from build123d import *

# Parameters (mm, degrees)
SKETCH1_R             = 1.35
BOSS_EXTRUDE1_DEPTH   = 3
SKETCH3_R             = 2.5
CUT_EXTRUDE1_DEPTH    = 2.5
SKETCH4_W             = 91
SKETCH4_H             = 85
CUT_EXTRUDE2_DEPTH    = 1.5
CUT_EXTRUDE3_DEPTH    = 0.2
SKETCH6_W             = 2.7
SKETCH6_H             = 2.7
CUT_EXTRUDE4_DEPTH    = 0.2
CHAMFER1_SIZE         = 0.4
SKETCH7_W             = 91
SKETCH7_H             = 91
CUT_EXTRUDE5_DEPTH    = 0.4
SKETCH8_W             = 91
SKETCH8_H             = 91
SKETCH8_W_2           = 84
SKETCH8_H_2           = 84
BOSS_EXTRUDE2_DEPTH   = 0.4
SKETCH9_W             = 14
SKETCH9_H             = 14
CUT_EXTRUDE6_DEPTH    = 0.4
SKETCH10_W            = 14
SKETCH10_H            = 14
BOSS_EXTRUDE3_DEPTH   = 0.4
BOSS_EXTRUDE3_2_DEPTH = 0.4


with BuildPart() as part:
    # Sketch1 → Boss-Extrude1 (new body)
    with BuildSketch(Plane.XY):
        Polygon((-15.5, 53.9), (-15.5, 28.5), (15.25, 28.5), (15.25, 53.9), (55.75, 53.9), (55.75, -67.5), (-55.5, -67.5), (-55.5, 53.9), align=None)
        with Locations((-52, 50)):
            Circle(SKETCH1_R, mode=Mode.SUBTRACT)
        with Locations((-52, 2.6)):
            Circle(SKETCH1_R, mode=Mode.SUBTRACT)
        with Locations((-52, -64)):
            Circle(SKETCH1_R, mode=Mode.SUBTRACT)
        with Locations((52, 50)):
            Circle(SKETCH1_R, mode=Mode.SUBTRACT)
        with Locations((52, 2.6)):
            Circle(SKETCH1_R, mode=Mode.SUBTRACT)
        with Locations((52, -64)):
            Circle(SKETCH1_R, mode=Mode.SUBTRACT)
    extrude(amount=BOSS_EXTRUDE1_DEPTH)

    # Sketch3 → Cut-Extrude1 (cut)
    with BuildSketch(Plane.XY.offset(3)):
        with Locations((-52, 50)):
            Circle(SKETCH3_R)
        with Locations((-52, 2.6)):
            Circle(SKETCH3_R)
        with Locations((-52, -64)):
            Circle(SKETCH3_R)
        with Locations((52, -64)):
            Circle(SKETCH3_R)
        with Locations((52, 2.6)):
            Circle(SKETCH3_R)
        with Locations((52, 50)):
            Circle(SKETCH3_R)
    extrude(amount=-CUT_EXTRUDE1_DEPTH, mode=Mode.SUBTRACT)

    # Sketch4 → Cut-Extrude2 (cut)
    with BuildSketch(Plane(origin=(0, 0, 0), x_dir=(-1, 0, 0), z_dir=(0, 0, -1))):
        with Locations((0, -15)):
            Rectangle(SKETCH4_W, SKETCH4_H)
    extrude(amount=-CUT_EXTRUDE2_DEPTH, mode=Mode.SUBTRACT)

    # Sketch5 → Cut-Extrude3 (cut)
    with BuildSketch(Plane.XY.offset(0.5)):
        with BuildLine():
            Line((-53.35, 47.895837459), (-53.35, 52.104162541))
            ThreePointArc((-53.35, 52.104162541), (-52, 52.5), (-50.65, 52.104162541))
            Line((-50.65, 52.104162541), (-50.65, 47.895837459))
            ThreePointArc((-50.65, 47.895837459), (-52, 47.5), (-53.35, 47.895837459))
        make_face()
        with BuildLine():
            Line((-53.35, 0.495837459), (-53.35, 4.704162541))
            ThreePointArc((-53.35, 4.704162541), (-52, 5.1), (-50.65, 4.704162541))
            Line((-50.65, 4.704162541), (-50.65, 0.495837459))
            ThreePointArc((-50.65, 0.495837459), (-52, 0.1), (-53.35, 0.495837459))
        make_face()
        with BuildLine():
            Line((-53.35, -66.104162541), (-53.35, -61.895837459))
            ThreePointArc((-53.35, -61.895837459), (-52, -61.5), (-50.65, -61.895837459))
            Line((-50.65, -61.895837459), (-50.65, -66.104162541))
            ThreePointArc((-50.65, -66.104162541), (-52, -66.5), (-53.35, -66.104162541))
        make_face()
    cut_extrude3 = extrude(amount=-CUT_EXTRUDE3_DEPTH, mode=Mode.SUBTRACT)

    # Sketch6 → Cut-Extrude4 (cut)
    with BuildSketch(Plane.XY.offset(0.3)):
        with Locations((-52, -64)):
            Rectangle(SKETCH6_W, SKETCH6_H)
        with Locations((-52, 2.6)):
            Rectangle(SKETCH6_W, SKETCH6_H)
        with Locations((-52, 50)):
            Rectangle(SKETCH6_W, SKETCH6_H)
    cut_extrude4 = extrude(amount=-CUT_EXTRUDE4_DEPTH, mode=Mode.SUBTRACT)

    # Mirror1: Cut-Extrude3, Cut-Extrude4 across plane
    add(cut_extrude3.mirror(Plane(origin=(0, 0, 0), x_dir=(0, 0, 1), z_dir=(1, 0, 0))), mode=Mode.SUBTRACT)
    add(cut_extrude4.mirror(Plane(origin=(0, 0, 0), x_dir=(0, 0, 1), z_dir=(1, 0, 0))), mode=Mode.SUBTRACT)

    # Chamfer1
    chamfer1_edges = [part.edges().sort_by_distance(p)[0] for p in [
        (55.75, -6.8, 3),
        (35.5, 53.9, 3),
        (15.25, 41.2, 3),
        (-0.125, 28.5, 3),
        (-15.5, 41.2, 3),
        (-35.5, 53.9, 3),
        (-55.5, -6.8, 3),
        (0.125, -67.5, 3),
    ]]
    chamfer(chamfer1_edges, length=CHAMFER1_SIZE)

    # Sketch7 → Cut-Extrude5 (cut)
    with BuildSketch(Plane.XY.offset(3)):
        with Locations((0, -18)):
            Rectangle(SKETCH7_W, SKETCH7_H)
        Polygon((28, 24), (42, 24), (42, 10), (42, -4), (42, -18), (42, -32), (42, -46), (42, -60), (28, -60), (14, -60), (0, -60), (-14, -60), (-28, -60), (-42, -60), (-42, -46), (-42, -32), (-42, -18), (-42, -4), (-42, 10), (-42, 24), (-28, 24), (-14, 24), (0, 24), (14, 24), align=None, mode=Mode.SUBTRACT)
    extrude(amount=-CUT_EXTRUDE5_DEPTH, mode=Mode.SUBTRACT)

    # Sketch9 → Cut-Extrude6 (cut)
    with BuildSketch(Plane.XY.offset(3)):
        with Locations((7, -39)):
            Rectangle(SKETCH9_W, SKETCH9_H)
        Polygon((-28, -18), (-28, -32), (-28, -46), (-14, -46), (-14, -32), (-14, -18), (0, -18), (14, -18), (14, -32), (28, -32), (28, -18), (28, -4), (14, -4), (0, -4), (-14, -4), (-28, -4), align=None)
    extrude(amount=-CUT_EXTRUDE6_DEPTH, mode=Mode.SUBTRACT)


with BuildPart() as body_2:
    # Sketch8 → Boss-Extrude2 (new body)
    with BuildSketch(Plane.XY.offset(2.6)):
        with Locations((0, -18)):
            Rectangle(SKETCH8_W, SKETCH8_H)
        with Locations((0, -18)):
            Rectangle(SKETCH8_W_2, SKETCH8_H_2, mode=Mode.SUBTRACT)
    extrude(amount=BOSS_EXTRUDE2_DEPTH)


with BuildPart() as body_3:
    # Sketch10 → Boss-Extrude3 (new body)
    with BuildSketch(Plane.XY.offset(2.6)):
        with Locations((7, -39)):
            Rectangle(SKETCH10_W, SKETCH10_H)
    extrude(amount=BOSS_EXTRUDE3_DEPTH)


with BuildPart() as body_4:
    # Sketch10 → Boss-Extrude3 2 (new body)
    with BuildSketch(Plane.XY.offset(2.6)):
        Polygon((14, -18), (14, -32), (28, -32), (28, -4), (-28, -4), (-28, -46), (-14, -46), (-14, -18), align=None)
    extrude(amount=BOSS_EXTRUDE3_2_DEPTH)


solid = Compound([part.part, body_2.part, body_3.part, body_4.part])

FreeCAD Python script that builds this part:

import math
import FreeCAD as App
import Part
import Sketcher
from FreeCAD import Vector


def edges_at(feature, points):
    """Names of the edges that pass closest to the given points."""
    edges = feature.Shape.Edges
    near = lambda p: min(range(len(edges)), key=lambda i: edges[i].distToShape(Part.Vertex(*p))[0])
    return sorted({f"Edge{near(p) + 1}" for p in points})


def add_polygon(sketch, points):
    """Adds a closed chain of lines whose ends are joined by coincident constraints."""
    first, n = sketch.GeometryCount, len(points)
    for a, b in zip(points, points[1:] + points[:1]):
        sketch.addGeometry(Part.LineSegment(App.Vector(*a, 0), App.Vector(*b, 0)), False)
    for i in range(n):
        sketch.addConstraint(Sketcher.Constraint("Coincident", first + i, 2, first + (i + 1) % n, 1))

doc = App.newDocument("Part")
body = doc.addObject("PartDesign::Body", "Body")

# Sketch on XY plane
sketch1 = doc.addObject("Sketcher::SketchObject", "Sketch")
body.addObject(sketch1)
sketch1.AttachmentSupport = (doc.XY_Plane, [""])
sketch1.MapMode = "FlatFace"
add_polygon(sketch1, [(-15.5, 28.5), (-15.5, 53.9), (-55.5, 53.9), (-55.5, -67.5), (55.75, -67.5), (55.75, 53.9), (15.25, 53.9), (15.25, 28.5)])  # lines 0-7
sketch1.addGeometry(Part.Circle(Vector(52, -64, 0), Vector(0, 0, 1), 1.35), False)  # 8
sketch1.addGeometry(Part.Circle(Vector(-52, -64, 0), Vector(0, 0, 1), 1.35), False)  # 9
sketch1.addGeometry(Part.Circle(Vector(52, 2.6, 0), Vector(0, 0, 1), 1.35), False)  # 10
sketch1.addGeometry(Part.Circle(Vector(52, 50, 0), Vector(0, 0, 1), 1.35), False)  # 11
sketch1.addGeometry(Part.Circle(Vector(-52, 2.6, 0), Vector(0, 0, 1), 1.35), False)  # 12
sketch1.addGeometry(Part.Circle(Vector(-52, 50, 0), Vector(0, 0, 1), 1.35), False)  # 13
sketch1.addConstraint([
    Sketcher.Constraint("Vertical", 0),
    Sketcher.Constraint("Horizontal", 1),
    Sketcher.Constraint("Vertical", 2),
    Sketcher.Constraint("Horizontal", 3),
    Sketcher.Constraint("Vertical", 4),
    Sketcher.Constraint("Horizontal", 5),
    Sketcher.Constraint("Vertical", 6),
    Sketcher.Constraint("Horizontal", 7),
    Sketcher.Constraint("Equal", 8, 9),
    Sketcher.Constraint("Equal", 9, 10),
    Sketcher.Constraint("Equal", 10, 11),
    Sketcher.Constraint("Equal", 11, 12),
    Sketcher.Constraint("Equal", 12, 13),
    Sketcher.Constraint("Symmetric", 8, 3, 9, 3, -2),
    Sketcher.Constraint("Symmetric", 10, 3, 12, 3, -2),
    Sketcher.Constraint("Symmetric", 11, 3, 13, 3, -2),
    Sketcher.Constraint("Horizontal", 1, 2, 4, 2),
    Sketcher.Constraint("Vertical", 8, 3, 10, 3),
    Sketcher.Constraint("Vertical", 10, 3, 11, 3),
    Sketcher.Constraint("Diameter", 8, 2.7),
    Sketcher.Constraint("DistanceX", 1, 2, 1, 1, 40.0),
    Sketcher.Constraint("DistanceX", 5, 2, 5, 1, 40.5),
    Sketcher.Constraint("DistanceY", 0, 1, 0, 2, 25.4),
    Sketcher.Constraint("DistanceY", 2, 2, 2, 1, 121.4),
    Sketcher.Constraint("DistanceX", -1, 1, 8, 3, 52.0),
    Sketcher.Constraint("DistanceY", 8, 3, -1, 1, 64.0),
    Sketcher.Constraint("DistanceY", -1, 1, 11, 3, 50.0),
    Sketcher.Constraint("DistanceX", 3, 1, 3, 2, 111.25),
    Sketcher.Constraint("DistanceY", -1, 1, 10, 3, 2.6),
    Sketcher.Constraint("DistanceX", 0, 2, -1, 1, 15.5),
    Sketcher.Constraint("DistanceY", -1, 1, 0, 2, 53.9),
])
pad1 = doc.addObject("PartDesign::Pad", "Pad")
body.addObject(pad1)
pad1.Profile = sketch1
pad1.Length = 3

# Sketch on XY plane
sketch2 = doc.addObject("Sketcher::SketchObject", "Sketch001")
body.addObject(sketch2)
sketch2.AttachmentSupport = (doc.XY_Plane, [""])
sketch2.MapMode = "FlatFace"
sketch2.AttachmentOffset = App.Placement(Vector(0, 0, 3), App.Rotation())
sketch2.addGeometry([
    Part.Circle(Vector(-52, 50, 0), Vector(0, 0, 1), 2.5),  # 0
    Part.Circle(Vector(-52, 2.6, 0), Vector(0, 0, 1), 2.5),  # 1
    Part.Circle(Vector(-52, -64, 0), Vector(0, 0, 1), 2.5),  # 2
    Part.Circle(Vector(52, -64, 0), Vector(0, 0, 1), 2.5),  # 3
    Part.Circle(Vector(52, 2.6, 0), Vector(0, 0, 1), 2.5),  # 4
    Part.Circle(Vector(52, 50, 0), Vector(0, 0, 1), 2.5),  # 5
], False)
sketch2.addConstraint([
    Sketcher.Constraint("Equal", 0, 1),
    Sketcher.Constraint("Equal", 1, 2),
    Sketcher.Constraint("Equal", 2, 3),
    Sketcher.Constraint("Equal", 3, 4),
    Sketcher.Constraint("Equal", 4, 5),
    Sketcher.Constraint("Symmetric", 2, 3, 3, 3, -2),
    Sketcher.Constraint("Symmetric", 1, 3, 4, 3, -2),
    Sketcher.Constraint("Symmetric", 0, 3, 5, 3, -2),
    Sketcher.Constraint("Vertical", 0, 3, 1, 3),
    Sketcher.Constraint("Vertical", 1, 3, 2, 3),
    Sketcher.Constraint("Diameter", 0, 5.0),
    Sketcher.Constraint("DistanceX", 0, 3, -1, 1, 52.0),
    Sketcher.Constraint("DistanceY", -1, 1, 0, 3, 50.0),
    Sketcher.Constraint("DistanceY", 2, 3, -1, 1, 64.0),
    Sketcher.Constraint("DistanceY", -1, 1, 1, 3, 2.6),
])
pocket1 = doc.addObject("PartDesign::Pocket", "Pocket")
body.addObject(pocket1)
pocket1.Profile = sketch2
pocket1.Length = 2.5

# Sketch on XY plane
sketch3 = doc.addObject("Sketcher::SketchObject", "Sketch002")
body.addObject(sketch3)
sketch3.AttachmentSupport = (doc.XY_Plane, [""])
sketch3.MapMode = "FlatFace"
add_polygon(sketch3, [(45.5, 27.5), (45.5, -57.5), (-45.5, -57.5), (-45.5, 27.5)])  # lines 0-3
sketch3.addConstraint([
    Sketcher.Constraint("Vertical", 0),
    Sketcher.Constraint("Horizontal", 1),
    Sketcher.Constraint("Vertical", 2),
    Sketcher.Constraint("Horizontal", 3),
    Sketcher.Constraint("DistanceX", 1, 2, 1, 1, 91.0),
    Sketcher.Constraint("DistanceY", 0, 2, 0, 1, 85.0),
    Sketcher.Constraint("DistanceX", -1, 1, 0, 2, 45.5),
    Sketcher.Constraint("DistanceY", 0, 2, -1, 1, 57.5),
])
pocket2 = doc.addObject("PartDesign::Pocket", "Pocket001")
body.addObject(pocket2)
pocket2.Profile = sketch3
pocket2.Length = 1.5
pocket2.Reversed = True

# Sketch on XY plane
sketch4 = doc.addObject("Sketcher::SketchObject", "Sketch003")
body.addObject(sketch4)
sketch4.AttachmentSupport = (doc.XY_Plane, [""])
sketch4.MapMode = "FlatFace"
sketch4.AttachmentOffset = App.Placement(Vector(0, 0, 0.5), App.Rotation())
sketch4.addGeometry([
    Part.LineSegment(Vector(-53.35, 52.104163, 0), Vector(-53.35, 47.895837, 0)),  # 0
    Part.ArcOfCircle(Part.Circle(Vector(-52, 50, 0), Vector(0, 0, 1), 2.5), math.radians(-122.683639), math.radians(-57.316361)),  # 1
    Part.LineSegment(Vector(-50.65, 47.895837, 0), Vector(-50.65, 52.104163, 0)),  # 2
    Part.ArcOfCircle(Part.Circle(Vector(-52, 50, 0), Vector(0, 0, 1), 2.5), math.radians(57.316361), math.radians(122.683639)),  # 3
    Part.LineSegment(Vector(-53.35, 4.704163, 0), Vector(-53.35, 0.495837, 0)),  # 4
    Part.ArcOfCircle(Part.Circle(Vector(-52, 2.6, 0), Vector(0, 0, 1), 2.5), math.radians(-122.683639), math.radians(-57.316361)),  # 5
    Part.LineSegment(Vector(-50.65, 0.495837, 0), Vector(-50.65, 4.704163, 0)),  # 6
    Part.ArcOfCircle(Part.Circle(Vector(-52, 2.6, 0), Vector(0, 0, 1), 2.5), math.radians(57.316361), math.radians(122.683639)),  # 7
    Part.LineSegment(Vector(-53.35, -61.895837, 0), Vector(-53.35, -66.104163, 0)),  # 8
    Part.ArcOfCircle(Part.Circle(Vector(-52, -64, 0), Vector(0, 0, 1), 2.5), math.radians(-122.683639), math.radians(-57.316361)),  # 9
    Part.LineSegment(Vector(-50.65, -66.104163, 0), Vector(-50.65, -61.895837, 0)),  # 10
    Part.ArcOfCircle(Part.Circle(Vector(-52, -64, 0), Vector(0, 0, 1), 2.5), math.radians(57.316361), math.radians(122.683639)),  # 11
], False)
sketch4.addConstraint([
    Sketcher.Constraint("Coincident", 0, 2, 1, 1),
    Sketcher.Constraint("Coincident", 1, 2, 2, 1),
    Sketcher.Constraint("Coincident", 2, 2, 3, 1),
    Sketcher.Constraint("Coincident", 3, 2, 0, 1),
    Sketcher.Constraint("Coincident", 4, 2, 5, 1),
    Sketcher.Constraint("Coincident", 5, 2, 6, 1),
    Sketcher.Constraint("Coincident", 6, 2, 7, 1),
    Sketcher.Constraint("Coincident", 7, 2, 4, 1),
    Sketcher.Constraint("Coincident", 8, 2, 9, 1),
    Sketcher.Constraint("Coincident", 9, 2, 10, 1),
    Sketcher.Constraint("Coincident", 10, 2, 11, 1),
    Sketcher.Constraint("Coincident", 11, 2, 8, 1),
    Sketcher.Constraint("Vertical", 0),
    Sketcher.Constraint("Vertical", 2),
    Sketcher.Constraint("Vertical", 4),
    Sketcher.Constraint("Vertical", 6),
    Sketcher.Constraint("Vertical", 8),
    Sketcher.Constraint("Vertical", 10),
    Sketcher.Constraint("Coincident", 3, 3, 1, 3),
    Sketcher.Constraint("Coincident", 7, 3, 5, 3),
    Sketcher.Constraint("Coincident", 11, 3, 9, 3),
    Sketcher.Constraint("Equal", 1, 3),
    Sketcher.Constraint("Equal", 3, 5),
    Sketcher.Constraint("Equal", 5, 7),
    Sketcher.Constraint("Equal", 7, 9),
    Sketcher.Constraint("Equal", 9, 11),
    Sketcher.Constraint("Horizontal", 0, 2, 1, 2),
    Sketcher.Constraint("Horizontal", 4, 2, 5, 2),
    Sketcher.Constraint("Horizontal", 8, 2, 9, 2),
    Sketcher.Constraint("Vertical", 3, 3, 5, 3),
    Sketcher.Constraint("Vertical", 7, 3, 9, 3),
    Sketcher.Constraint("Vertical", 3, 2, 4, 2),
    Sketcher.Constraint("Vertical", 7, 2, 8, 2),
    Sketcher.Constraint("Radius", 1, 2.5),
    Sketcher.Constraint("DistanceX", 1, 3, -1, 1, 52.0),
    Sketcher.Constraint("DistanceY", -1, 1, 1, 3, 50.0),
    Sketcher.Constraint("DistanceY", 9, 3, -1, 1, 64.0),
    Sketcher.Constraint("DistanceY", -1, 1, 5, 3, 2.6),
    Sketcher.Constraint("DistanceX", 0, 2, 1, 2, 2.7),
])
pocket3 = doc.addObject("PartDesign::Pocket", "Pocket002")
body.addObject(pocket3)
pocket3.Profile = sketch4
pocket3.Length = 0.2

# Sketch on XY plane
sketch5 = doc.addObject("Sketcher::SketchObject", "Sketch004")
body.addObject(sketch5)
sketch5.AttachmentSupport = (doc.XY_Plane, [""])
sketch5.MapMode = "FlatFace"
sketch5.AttachmentOffset = App.Placement(Vector(0, 0, 0.3), App.Rotation())
add_polygon(sketch5, [(-53.35, -62.65), (-53.35, -65.35), (-50.65, -65.35), (-50.65, -62.65)])  # lines 0-3
add_polygon(sketch5, [(-53.35, 3.95), (-53.35, 1.25), (-50.65, 1.25), (-50.65, 3.95)])  # lines 4-7
add_polygon(sketch5, [(-53.35, 51.35), (-53.35, 48.65), (-50.65, 48.65), (-50.65, 51.35)])  # lines 8-11
sketch5.addConstraint([
    Sketcher.Constraint("Vertical", 0),
    Sketcher.Constraint("Horizontal", 1),
    Sketcher.Constraint("Vertical", 2),
    Sketcher.Constraint("Horizontal", 3),
    Sketcher.Constraint("Vertical", 4),
    Sketcher.Constraint("Horizontal", 5),
    Sketcher.Constraint("Vertical", 6),
    Sketcher.Constraint("Horizontal", 7),
    Sketcher.Constraint("Vertical", 8),
    Sketcher.Constraint("Horizontal", 9),
    Sketcher.Constraint("Vertical", 10),
    Sketcher.Constraint("Horizontal", 11),
    Sketcher.Constraint("Vertical", 3, 2, 4, 2),
    Sketcher.Constraint("Vertical", 2, 2, 5, 2),
    Sketcher.Constraint("Vertical", 7, 2, 8, 2),
    Sketcher.Constraint("Vertical", 6, 2, 9, 2),
    Sketcher.Constraint("Equal", 11, 0),
    Sketcher.Constraint("Equal", 2, 4),
    Sketcher.Constraint("Equal", 6, 8),
    Sketcher.Constraint("DistanceX", 1, 1, 1, 2, 2.7),
    Sketcher.Constraint("DistanceY", 3, 2, 4, 2, 63.9),
    Sketcher.Constraint("DistanceY", 7, 2, 8, 2, 44.7),
    Sketcher.Constraint("DistanceX", 0, 2, -1, 1, 53.35),
    Sketcher.Constraint("DistanceY", 0, 2, -1, 1, 65.35),
])
pocket4 = doc.addObject("PartDesign::Pocket", "Pocket003")
body.addObject(pocket4)
pocket4.Profile = sketch5
pocket4.Length = 0.2
doc.recompute()

mirrored = doc.addObject("PartDesign::Mirrored", "Mirrored")
body.addObject(mirrored)
mirrored.Originals = [pocket3, pocket4]
mirrored.MirrorPlane = (doc.YZ_Plane, [""])
body.Tip = mirrored
doc.recompute()

chamfer = doc.addObject("PartDesign::Chamfer", "Chamfer")
body.addObject(chamfer)
chamfer.Base = (mirrored, edges_at(mirrored, [
    (55.75, -6.8, 3),
    (35.5, 53.9, 3),
    (15.25, 41.2, 3),
    (-0.125, 28.5, 3),
    (-15.5, 41.2, 3),
    (-35.5, 53.9, 3),
    (-55.5, -6.8, 3),
    (0.125, -67.5, 3),
]))
chamfer.Size = 0.4

# Sketch on XY plane
sketch6 = doc.addObject("Sketcher::SketchObject", "Sketch005")
body.addObject(sketch6)
sketch6.AttachmentSupport = (doc.XY_Plane, [""])
sketch6.MapMode = "FlatFace"
sketch6.AttachmentOffset = App.Placement(Vector(0, 0, 3), App.Rotation())
add_polygon(sketch6, [(-45.5, 27.5), (-45.5, -63.5), (45.5, -63.5), (45.5, 27.5)])  # lines 0-3
add_polygon(sketch6, [(-42, 24), (42, 24), (42, -60), (-42, -60)])  # lines 4-7
sketch6.addConstraint([
    Sketcher.Constraint("Vertical", 0),
    Sketcher.Constraint("Horizontal", 1),
    Sketcher.Constraint("Vertical", 2),
    Sketcher.Constraint("Horizontal", 3),
    Sketcher.Constraint("Horizontal", 4),
    Sketcher.Constraint("Vertical", 5),
    Sketcher.Constraint("Horizontal", 6),
    Sketcher.Constraint("Vertical", 7),
    Sketcher.Constraint("Equal", 3, 0),
    Sketcher.Constraint("Equal", 6, 5),
    Sketcher.Constraint("DistanceX", 1, 1, 1, 2, 91.0),
    Sketcher.Constraint("DistanceX", 4, 1, 4, 2, 84.0),
    Sketcher.Constraint("DistanceX", -1, 1, 4, 2, 42.0),
    Sketcher.Constraint("DistanceY", -1, 1, 4, 2, 24.0),
    Sketcher.Constraint("DistanceX", 0, 2, -1, 1, 45.5),
    Sketcher.Constraint("DistanceY", 0, 2, -1, 1, 63.5),
])
pocket5 = doc.addObject("PartDesign::Pocket", "Pocket004")
body.addObject(pocket5)
pocket5.Profile = sketch6
pocket5.Length = 0.4

# Sketch on XY plane
sketch7 = doc.addObject("Sketcher::SketchObject", "Sketch006")
body.addObject(sketch7)
sketch7.AttachmentSupport = (doc.XY_Plane, [""])
sketch7.MapMode = "FlatFace"
sketch7.AttachmentOffset = App.Placement(Vector(0, 0, 3), App.Rotation())
add_polygon(sketch7, [(0, -32), (0, -46), (14, -46), (14, -32)])  # lines 0-3
add_polygon(sketch7, [(-28, -46), (-14, -46), (-14, -18), (14, -18), (14, -32), (28, -32), (28, -4), (-28, -4)])  # lines 4-11
sketch7.addConstraint([
    Sketcher.Constraint("Vertical", 0),
    Sketcher.Constraint("Horizontal", 1),
    Sketcher.Constraint("Vertical", 2),
    Sketcher.Constraint("Horizontal", 3),
    Sketcher.Constraint("Horizontal", 4),
    Sketcher.Constraint("Vertical", 5),
    Sketcher.Constraint("Horizontal", 6),
    Sketcher.Constraint("Vertical", 7),
    Sketcher.Constraint("Horizontal", 8),
    Sketcher.Constraint("Vertical", 9),
    Sketcher.Constraint("Horizontal", 10),
    Sketcher.Constraint("Vertical", 11),
    Sketcher.Constraint("Coincident", 7, 2, 2, 2),
    Sketcher.Constraint("Symmetric", 1, 2, 4, 2, -2),
    Sketcher.Constraint("PointOnObject", 0, 2, -2),
    Sketcher.Constraint("Equal", 3, 4),
    Sketcher.Constraint("Equal", 4, 8),
    Sketcher.Constraint("Equal", 8, 0),
    Sketcher.Constraint("Equal", 6, 5),
    Sketcher.Constraint("Equal", 5, 9),
    Sketcher.Constraint("DistanceX", 1, 1, 1, 2, 14.0),
    Sketcher.Constraint("DistanceY", 0, 2, -1, 1, 46.0),
])
pocket6 = doc.addObject("PartDesign::Pocket", "Pocket005")
body.addObject(pocket6)
pocket6.Profile = sketch7
pocket6.Length = 0.4
body2 = doc.addObject("PartDesign::Body", "Body001")

# Sketch on XY plane
sketch8 = doc.addObject("Sketcher::SketchObject", "Sketch007")
body2.addObject(sketch8)
sketch8.AttachmentSupport = (doc.getObject("XY_Plane001"), [""])
sketch8.MapMode = "FlatFace"
sketch8.AttachmentOffset = App.Placement(Vector(0, 0, 2.6), App.Rotation())
add_polygon(sketch8, [(-45.5, 27.5), (-45.5, -63.5), (45.5, -63.5), (45.5, 27.5)])  # lines 0-3
add_polygon(sketch8, [(42, -60), (-42, -60), (-42, 24), (42, 24)])  # lines 4-7
sketch8.addConstraint([
    Sketcher.Constraint("Vertical", 0),
    Sketcher.Constraint("Horizontal", 1),
    Sketcher.Constraint("Vertical", 2),
    Sketcher.Constraint("Horizontal", 3),
    Sketcher.Constraint("Horizontal", 4),
    Sketcher.Constraint("Vertical", 5),
    Sketcher.Constraint("Horizontal", 6),
    Sketcher.Constraint("Vertical", 7),
    Sketcher.Constraint("Equal", 3, 0),
    Sketcher.Constraint("Equal", 6, 5),
    Sketcher.Constraint("DistanceX", 1, 1, 1, 2, 91.0),
    Sketcher.Constraint("DistanceX", 4, 2, 4, 1, 84.0),
    Sketcher.Constraint("DistanceX", 4, 2, -1, 1, 42.0),
    Sketcher.Constraint("DistanceY", 4, 2, -1, 1, 60.0),
    Sketcher.Constraint("DistanceX", 0, 2, -1, 1, 45.5),
    Sketcher.Constraint("DistanceY", 0, 2, -1, 1, 63.5),
])
pad2 = doc.addObject("PartDesign::Pad", "Pad001")
body2.addObject(pad2)
pad2.Profile = sketch8
pad2.Length = 0.4
body3 = doc.addObject("PartDesign::Body", "Body002")

# Sketch on XY plane
sketch9 = doc.addObject("Sketcher::SketchObject", "Sketch008")
body3.addObject(sketch9)
sketch9.AttachmentSupport = (doc.getObject("XY_Plane002"), [""])
sketch9.MapMode = "FlatFace"
sketch9.AttachmentOffset = App.Placement(Vector(0, 0, 2.6), App.Rotation())
add_polygon(sketch9, [(0, -32), (0, -46), (14, -46), (14, -32)])  # lines 0-3
sketch9.addConstraint([
    Sketcher.Constraint("Vertical", 0),
    Sketcher.Constraint("Horizontal", 1),
    Sketcher.Constraint("Vertical", 2),
    Sketcher.Constraint("Horizontal", 3),
    Sketcher.Constraint("PointOnObject", 0, 2, -2),
    Sketcher.Constraint("Equal", 3, 0),
    Sketcher.Constraint("DistanceX", 1, 1, 1, 2, 14.0),
    Sketcher.Constraint("DistanceY", 0, 2, -1, 1, 46.0),
])
pad3 = doc.addObject("PartDesign::Pad", "Pad002")
body3.addObject(pad3)
pad3.Profile = sketch9
pad3.Length = 0.4
body4 = doc.addObject("PartDesign::Body", "Body003")

# Sketch on XY plane
sketch10 = doc.addObject("Sketcher::SketchObject", "Sketch009")
body4.addObject(sketch10)
sketch10.AttachmentSupport = (doc.getObject("XY_Plane003"), [""])
sketch10.MapMode = "FlatFace"
sketch10.AttachmentOffset = App.Placement(Vector(0, 0, 2.6), App.Rotation())
add_polygon(sketch10, [(14, -18), (14, -32), (28, -32), (28, -4), (-28, -4), (-28, -46), (-14, -46), (-14, -18)])  # lines 0-7
sketch10.addConstraint([
    Sketcher.Constraint("Vertical", 0),
    Sketcher.Constraint("Horizontal", 1),
    Sketcher.Constraint("Vertical", 2),
    Sketcher.Constraint("Horizontal", 3),
    Sketcher.Constraint("Vertical", 4),
    Sketcher.Constraint("Horizontal", 5),
    Sketcher.Constraint("Vertical", 6),
    Sketcher.Constraint("Horizontal", 7),
    Sketcher.Constraint("Equal", 1, 5),
    Sketcher.Constraint("Equal", 5, 0),
    Sketcher.Constraint("Equal", 7, 2),
    Sketcher.Constraint("Equal", 2, 6),
    Sketcher.Constraint("DistanceX", 1, 1, 1, 2, 14.0),
    Sketcher.Constraint("DistanceX", 3, 2, 3, 1, 56.0),
    Sketcher.Constraint("DistanceX", -1, 1, 0, 2, 14.0),
    Sketcher.Constraint("DistanceY", 0, 2, -1, 1, 32.0),
])
pad4 = doc.addObject("PartDesign::Pad", "Pad003")
body4.addObject(pad4)
pad4.Profile = sketch10
pad4.Length = 0.4

doc.recompute()
